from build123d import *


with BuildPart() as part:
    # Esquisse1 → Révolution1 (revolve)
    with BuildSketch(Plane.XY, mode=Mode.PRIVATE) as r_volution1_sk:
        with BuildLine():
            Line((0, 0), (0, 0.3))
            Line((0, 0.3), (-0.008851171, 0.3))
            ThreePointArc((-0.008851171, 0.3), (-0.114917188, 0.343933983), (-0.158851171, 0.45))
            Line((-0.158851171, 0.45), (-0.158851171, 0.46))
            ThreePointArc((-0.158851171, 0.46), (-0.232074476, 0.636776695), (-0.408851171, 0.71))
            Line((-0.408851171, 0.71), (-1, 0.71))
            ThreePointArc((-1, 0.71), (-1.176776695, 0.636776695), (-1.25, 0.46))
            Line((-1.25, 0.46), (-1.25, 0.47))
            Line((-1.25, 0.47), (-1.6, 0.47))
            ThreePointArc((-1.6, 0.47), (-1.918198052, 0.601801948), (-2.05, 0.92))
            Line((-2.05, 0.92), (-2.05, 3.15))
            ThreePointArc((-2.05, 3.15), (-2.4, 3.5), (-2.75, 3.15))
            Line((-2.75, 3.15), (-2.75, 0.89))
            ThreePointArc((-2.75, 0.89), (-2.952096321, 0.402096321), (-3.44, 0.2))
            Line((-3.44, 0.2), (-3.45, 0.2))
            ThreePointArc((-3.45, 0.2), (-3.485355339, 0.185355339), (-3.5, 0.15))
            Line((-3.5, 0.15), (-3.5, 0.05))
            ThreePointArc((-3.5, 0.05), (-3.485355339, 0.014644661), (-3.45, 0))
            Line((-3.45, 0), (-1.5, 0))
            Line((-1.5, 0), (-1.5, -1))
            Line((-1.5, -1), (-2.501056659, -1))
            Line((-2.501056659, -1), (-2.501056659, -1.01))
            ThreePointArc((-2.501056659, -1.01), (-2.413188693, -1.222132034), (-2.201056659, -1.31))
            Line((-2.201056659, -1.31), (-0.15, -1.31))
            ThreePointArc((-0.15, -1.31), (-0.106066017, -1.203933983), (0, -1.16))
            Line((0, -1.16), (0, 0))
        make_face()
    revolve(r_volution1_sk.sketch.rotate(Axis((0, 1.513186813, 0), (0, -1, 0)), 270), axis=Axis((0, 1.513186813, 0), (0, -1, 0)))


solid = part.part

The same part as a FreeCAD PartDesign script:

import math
import FreeCAD as App
import Part
import Sketcher

V = App.Vector
Q = App.Units.Quantity

doc = App.newDocument("Part")
body = doc.addObject("PartDesign::Body", "Body")

sketch1 = doc.addObject("Sketcher::SketchObject", "Sketch")
body.addObject(sketch1)
sketch1.AttachmentSupport = (doc.XY_Plane, [""])
sketch1.MapMode = "FlatFace"
sketch1.addGeometry([
    Part.LineSegment(V(0, 0.3, 0), V(-0.009, 0.3, 0)),
    Part.ArcOfCircle(Part.Circle(V(-0.009, 0.45, 0), V(0, 0, 1), 0.15), math.radians(-180), math.radians(-90)),
    Part.LineSegment(V(-0.159, 0.45, 0), V(-0.159, 0.46, 0)),
    Part.ArcOfCircle(Part.Circle(V(-0.409, 0.46, 0), V(0, 0, 1), 0.25), math.radians(0), math.radians(90)),
    Part.LineSegment(V(-0.409, 0.71, 0), V(-1, 0.71, 0)),
    Part.ArcOfCircle(Part.Circle(V(-1, 0.46, 0), V(0, 0, 1), 0.25), math.radians(90), math.radians(180)),
    Part.LineSegment(V(-1.25, 0.46, 0), V(-1.25, 0.47, 0)),
    Part.LineSegment(V(-1.25, 0.47, 0), V(-1.6, 0.47, 0)),
    Part.ArcOfCircle(Part.Circle(V(-1.6, 0.92, 0), V(0, 0, 1), 0.45), math.radians(180), math.radians(270)),
    Part.LineSegment(V(-2.05, 0.92, 0), V(-2.05, 3.15, 0)),
    Part.ArcOfCircle(Part.Circle(V(-2.4, 3.15, 0), V(0, 0, 1), 0.35), math.radians(0), math.radians(180)),
    Part.LineSegment(V(-2.75, 3.15, 0), V(-2.75, 0.89, 0)),
    Part.ArcOfCircle(Part.Circle(V(-3.44, 0.89, 0), V(0, 0, 1), 0.69), math.radians(-90), math.radians(0)),
    Part.LineSegment(V(-3.44, 0.2, 0), V(-3.45, 0.2, 0)),
    Part.ArcOfCircle(Part.Circle(V(-3.45, 0.15, 0), V(0, 0, 1), 0.05), math.radians(90), math.radians(180)),
    Part.LineSegment(V(-3.5, 0.15, 0), V(-3.5, 0.05, 0)),
    Part.ArcOfCircle(Part.Circle(V(-3.45, 0.05, 0), V(0, 0, 1), 0.05), math.radians(180), math.radians(270)),
    Part.LineSegment(V(-3.45, 0, 0), V(-1.5, 0, 0)),
    Part.LineSegment(V(-1.5, 0, 0), V(-1.5, -1, 0)),
    Part.LineSegment(V(-1.5, -1, 0), V(-2.501, -1, 0)),
    Part.LineSegment(V(-2.501, -1, 0), V(-2.501, -1.01, 0)),
    Part.ArcOfCircle(Part.Circle(V(-2.201, -1.01, 0), V(0, 0, 1), 0.3), math.radians(-180), math.radians(-90)),
    Part.LineSegment(V(-2.201, -1.31, 0), V(-0.15, -1.31, 0)),
    Part.ArcOfCircle(Part.Circle(V(0, -1.31, 0), V(0, 0, 1), 0.15), math.radians(90), math.radians(180)),
    Part.LineSegment(V(0, -1.16, 0), V(0, 0.3, 0)),
], False)
sketch1.addConstraint([
    Sketcher.Constraint("Tangent", 0, 2, 1, 2),
    Sketcher.Constraint("Tangent", 1, 1, 2, 1),
    Sketcher.Constraint("Tangent", 2, 2, 3, 1),
    Sketcher.Constraint("Tangent", 3, 2, 4, 1),
    Sketcher.Constraint("Tangent", 4, 2, 5, 1),
    Sketcher.Constraint("Tangent", 5, 2, 6, 1),
    Sketcher.Constraint("Coincident", 6, 2, 7, 1),
    Sketcher.Constraint("Tangent", 7, 2, 8, 2),
    Sketcher.Constraint("Tangent", 8, 1, 9, 1),
    Sketcher.Constraint("Tangent", 9, 2, 10, 1),
    Sketcher.Constraint("Tangent", 10, 2, 11, 1),
    Sketcher.Constraint("Tangent", 11, 2, 12, 2),
    Sketcher.Constraint("Tangent", 12, 1, 13, 1),
    Sketcher.Constraint("Tangent", 13, 2, 14, 1),
    Sketcher.Constraint("Tangent", 14, 2, 15, 1),
    Sketcher.Constraint("Tangent", 15, 2, 16, 1),
    Sketcher.Constraint("Tangent", 16, 2, 17, 1),
    Sketcher.Constraint("Coincident", 17, 2, 18, 1),
    Sketcher.Constraint("Coincident", 18, 2, 19, 1),
    Sketcher.Constraint("Coincident", 19, 2, 20, 1),
    Sketcher.Constraint("Tangent", 20, 2, 21, 1),
    Sketcher.Constraint("Tangent", 21, 2, 22, 1),
    Sketcher.Constraint("Coincident", 22, 2, 23, 2),
    Sketcher.Constraint("Coincident", 23, 1, 24, 1),
    Sketcher.Constraint("Coincident", 24, 2, 0, 1),
    Sketcher.Constraint("Horizontal", 0),
    Sketcher.Constraint("Vertical", 2),
    Sketcher.Constraint("Horizontal", 4),
    Sketcher.Constraint("Vertical", 6),
    Sketcher.Constraint("Horizontal", 7),
    Sketcher.Constraint("Vertical", 9),
    Sketcher.Constraint("Vertical", 11),
    Sketcher.Constraint("Horizontal", 13),
    Sketcher.Constraint("Vertical", 15),
    Sketcher.Constraint("Horizontal", 17),
    Sketcher.Constraint("Vertical", 18),
    Sketcher.Constraint("Horizontal", 19),
    Sketcher.Constraint("Vertical", 20),
    Sketcher.Constraint("Horizontal", 22),
    Sketcher.Constraint("Vertical", 24),
    Sketcher.Constraint("Equal", 3, 5),
    Sketcher.Constraint("Equal", 14, 16),
    Sketcher.Constraint("Equal", 1, 23),
    Sketcher.Constraint("PointOnObject", 23, 3, -2),
    Sketcher.Constraint("PointOnObject", 16, 2, -1),
    Sketcher.Constraint("PointOnObject", 23, 1, -2),
    Sketcher.Constraint("Horizontal", 23, 3, 21, 2),
    Sketcher.Constraint("Equal", 13, 2),
    Sketcher.Constraint("Equal", 2, 6),
    Sketcher.Constraint("Equal", 6, 20),
    Sketcher.Constraint("Radius", 21, Q("0.3 mm")),
    Sketcher.Constraint("DistanceY", 18, 2, 18, 1, Q("1 mm")),
    Sketcher.Constraint("Radius", 1, Q("0.15 mm")),
    Sketcher.Constraint("Radius", 3, Q("0.25 mm")),
    Sketcher.Constraint("Radius", 8, Q("0.45 mm")),
    Sketcher.Constraint("Radius", 10, Q("0.35 mm")),
    Sketcher.Constraint("Radius", 12, Q("0.69 mm")),
    Sketcher.Constraint("Radius", 14, Q("0.05 mm")),
    Sketcher.Constraint("DistanceY", 15, 2, 15, 1, Q("0.1 mm")),
    Sketcher.Constraint("DistanceX", 5, 3, -1, 1, Q("1 mm")),
    Sketcher.Constraint("DistanceY", 14, 3, 10, 3, Q("3 mm")),
    Sketcher.Constraint("DistanceX", 7, 2, 7, 1, Q("0.35 mm")),
    Sketcher.Constraint("DistanceX", 13, 2, 13, 1, Q("0.01 mm")),
    Sketcher.Constraint("DistanceX", 17, 1, 17, 2, Q("1.95 mm")),
    Sketcher.Constraint("DistanceY", 9, 1, 9, 2, Q("2.23 mm")),
    Sketcher.Constraint("DistanceX", 0, 2, 0, 1, Q("0.008851 mm")),
    Sketcher.Constraint("DistanceX", 19, 2, 19, 1, Q("1.001057 mm")),
])
revolution = doc.addObject("PartDesign::Revolution", "Revolution")
body.addObject(revolution)
revolution.Profile = sketch1
revolution.ReferenceAxis = (sketch1, ["V_Axis"])
revolution.Angle = 360

doc.recompute()
